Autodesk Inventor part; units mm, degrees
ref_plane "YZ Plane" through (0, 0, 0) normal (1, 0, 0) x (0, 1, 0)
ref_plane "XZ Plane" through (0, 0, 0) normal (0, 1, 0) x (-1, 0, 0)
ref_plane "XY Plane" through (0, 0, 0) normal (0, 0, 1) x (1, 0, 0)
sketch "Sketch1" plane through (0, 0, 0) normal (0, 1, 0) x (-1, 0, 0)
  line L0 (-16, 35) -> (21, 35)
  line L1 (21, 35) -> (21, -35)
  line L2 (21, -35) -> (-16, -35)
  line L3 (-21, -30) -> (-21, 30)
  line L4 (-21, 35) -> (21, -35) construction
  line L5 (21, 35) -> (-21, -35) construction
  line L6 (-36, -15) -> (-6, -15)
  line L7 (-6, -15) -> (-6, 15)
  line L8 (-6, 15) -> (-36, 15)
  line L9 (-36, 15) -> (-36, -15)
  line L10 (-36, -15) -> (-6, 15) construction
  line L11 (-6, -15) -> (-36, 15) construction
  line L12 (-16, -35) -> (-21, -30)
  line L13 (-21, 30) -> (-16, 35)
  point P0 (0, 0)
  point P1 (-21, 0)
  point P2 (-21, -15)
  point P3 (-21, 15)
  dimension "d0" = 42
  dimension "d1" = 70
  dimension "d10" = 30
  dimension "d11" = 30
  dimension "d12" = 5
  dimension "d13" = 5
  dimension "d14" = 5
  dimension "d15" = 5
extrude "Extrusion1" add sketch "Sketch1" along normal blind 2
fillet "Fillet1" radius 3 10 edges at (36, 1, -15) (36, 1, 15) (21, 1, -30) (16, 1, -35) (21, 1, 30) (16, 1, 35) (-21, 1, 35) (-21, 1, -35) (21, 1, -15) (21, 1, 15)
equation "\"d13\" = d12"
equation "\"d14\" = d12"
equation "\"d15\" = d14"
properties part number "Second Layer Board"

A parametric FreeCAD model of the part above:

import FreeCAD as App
import Part
import Sketcher

V = App.Vector
Q = App.Units.Quantity


def edges_at(feature, points):
    """Names of the edges that pass closest to the given points."""
    edges = feature.Shape.Edges
    near = lambda p: min(range(len(edges)), key=lambda i: edges[i].distToShape(Part.Vertex(*p))[0])
    return sorted({f"Edge{near(p) + 1}" for p in points})

doc = App.newDocument("Part")
body = doc.addObject("PartDesign::Body", "Body")

sketch1 = body.newObject("Sketcher::SketchObject", "Sketch")
sketch1.AttachmentSupport = (doc.getObject("XZ_Plane"), [""])
sketch1.MapMode = "FlatFace"
sketch1.addGeometry(Part.LineSegment(V(-21, 35, 0), V(16, 35, 0)), False)
sketch1.addGeometry(Part.LineSegment(V(16, 35, 0), V(21, 30, 0)), False)
sketch1.addGeometry(Part.LineSegment(V(21, 30, 0), V(21, 15, 0)), False)
sketch1.addGeometry(Part.LineSegment(V(21, 15, 0), V(36, 15, 0)), False)
sketch1.addGeometry(Part.LineSegment(V(36, 15, 0), V(36, -15, 0)), False)
sketch1.addGeometry(Part.LineSegment(V(36, -15, 0), V(21, -15, 0)), False)
sketch1.addGeometry(Part.LineSegment(V(21, -15, 0), V(21, -30, 0)), False)
sketch1.addGeometry(Part.LineSegment(V(21, -30, 0), V(16, -35, 0)), False)
sketch1.addGeometry(Part.LineSegment(V(16, -35, 0), V(-21, -35, 0)), False)
sketch1.addGeometry(Part.LineSegment(V(-21, -35, 0), V(-21, 35, 0)), False)
sketch1.addConstraint(Sketcher.Constraint("Coincident", 0, 2, 1, 1))
sketch1.addConstraint(Sketcher.Constraint("Coincident", 1, 2, 2, 1))
sketch1.addConstraint(Sketcher.Constraint("Coincident", 2, 2, 3, 1))
sketch1.addConstraint(Sketcher.Constraint("Coincident", 3, 2, 4, 1))
sketch1.addConstraint(Sketcher.Constraint("Coincident", 4, 2, 5, 1))
sketch1.addConstraint(Sketcher.Constraint("Coincident", 5, 2, 6, 1))
sketch1.addConstraint(Sketcher.Constraint("Coincident", 6, 2, 7, 1))
sketch1.addConstraint(Sketcher.Constraint("Coincident", 7, 2, 8, 1))
sketch1.addConstraint(Sketcher.Constraint("Coincident", 8, 2, 9, 1))
sketch1.addConstraint(Sketcher.Constraint("Coincident", 9, 2, 0, 1))
sketch1.addConstraint(Sketcher.Constraint("Horizontal", 0))
sketch1.addConstraint(Sketcher.Constraint("Vertical", 2))
sketch1.addConstraint(Sketcher.Constraint("Horizontal", 3))
sketch1.addConstraint(Sketcher.Constraint("Vertical", 4))
sketch1.addConstraint(Sketcher.Constraint("Horizontal", 5))
sketch1.addConstraint(Sketcher.Constraint("Vertical", 6))
sketch1.addConstraint(Sketcher.Constraint("Horizontal", 8))
sketch1.addConstraint(Sketcher.Constraint("Vertical", 9))
sketch1.addConstraint(Sketcher.Constraint("Symmetric", 2, 2, 5, 2, -1))
sketch1.addConstraint(Sketcher.Constraint("Symmetric", 0, 2, 7, 2, -1))
sketch1.addConstraint(Sketcher.Constraint("Perpendicular", 1, 7))
sketch1.addConstraint(Sketcher.Constraint("Equal", 5, 2))
sketch1.addConstraint(Sketcher.Constraint("Equal", 2, 6))
sketch1.addConstraint(Sketcher.Constraint("DistanceY", 4, 2, 4, 1, Q("30 mm")))
sketch1.addConstraint(Sketcher.Constraint("DistanceY", 9, 1, 9, 2, Q("70 mm")))
sketch1.addConstraint(Sketcher.Constraint("DistanceY", -1, 1, 1, 2, Q("30 mm")))
sketch1.addConstraint(Sketcher.Constraint("DistanceX", 8, 2, 6, 2, Q("42 mm")))
sketch1.addConstraint(Sketcher.Constraint("DistanceX", -1, 1, 0, 2, Q("16 mm")))
pad1 = body.newObject("PartDesign::Pad", "Pad")
pad1.Profile = sketch1
pad1.Length = 2
pad1.Reversed = True
doc.recompute()

fillet = body.newObject("PartDesign::Fillet", "Fillet")
fillet.Base = (pad1, edges_at(pad1, [
    (36, 1, -15),
    (36, 1, 15),
    (21, 1, -30),
    (16, 1, -35),
    (21, 1, 30),
    (16, 1, 35),
    (-21, 1, 35),
    (-21, 1, -35),
    (21, 1, -15),
    (21, 1, 15),
]))
fillet.Radius = 3

doc.recompute()
